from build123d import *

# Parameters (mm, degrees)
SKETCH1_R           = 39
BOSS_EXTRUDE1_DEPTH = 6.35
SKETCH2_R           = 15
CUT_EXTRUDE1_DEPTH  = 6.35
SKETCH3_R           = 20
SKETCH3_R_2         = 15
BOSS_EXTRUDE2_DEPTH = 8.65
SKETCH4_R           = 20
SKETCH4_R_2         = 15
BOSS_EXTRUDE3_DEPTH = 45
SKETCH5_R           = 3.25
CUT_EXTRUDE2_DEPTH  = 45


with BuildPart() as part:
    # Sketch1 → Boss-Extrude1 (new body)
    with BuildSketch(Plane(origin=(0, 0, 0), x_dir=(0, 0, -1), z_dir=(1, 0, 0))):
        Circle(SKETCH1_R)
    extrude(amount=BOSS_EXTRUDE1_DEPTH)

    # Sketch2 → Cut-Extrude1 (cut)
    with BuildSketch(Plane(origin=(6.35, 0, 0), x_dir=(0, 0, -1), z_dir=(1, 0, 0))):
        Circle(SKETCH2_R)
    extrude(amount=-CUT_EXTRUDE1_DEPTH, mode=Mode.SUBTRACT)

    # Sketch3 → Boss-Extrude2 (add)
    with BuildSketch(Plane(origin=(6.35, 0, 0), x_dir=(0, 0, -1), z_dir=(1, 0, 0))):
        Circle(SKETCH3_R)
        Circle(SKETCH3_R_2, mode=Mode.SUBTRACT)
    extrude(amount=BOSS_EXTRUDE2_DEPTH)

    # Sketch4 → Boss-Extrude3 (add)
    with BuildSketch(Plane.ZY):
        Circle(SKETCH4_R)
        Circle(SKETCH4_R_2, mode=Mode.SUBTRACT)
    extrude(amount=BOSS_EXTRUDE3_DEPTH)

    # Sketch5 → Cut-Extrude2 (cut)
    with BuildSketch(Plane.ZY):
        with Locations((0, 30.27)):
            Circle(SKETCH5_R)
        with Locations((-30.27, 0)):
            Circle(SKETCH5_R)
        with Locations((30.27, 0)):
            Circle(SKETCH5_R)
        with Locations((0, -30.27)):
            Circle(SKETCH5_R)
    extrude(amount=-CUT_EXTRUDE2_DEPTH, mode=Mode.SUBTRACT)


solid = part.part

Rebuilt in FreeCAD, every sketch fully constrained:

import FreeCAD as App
import Part
import Sketcher

V = App.Vector

doc = App.newDocument("Part")
body = doc.addObject("PartDesign::Body", "Body")

# Sketch on YZ plane
sketch1 = body.newObject("Sketcher::SketchObject", "Sketch")
sketch1.AttachmentSupport = (doc.getObject("YZ_Plane"), [""])
sketch1.MapMode = "FlatFace"
sketch1.addGeometry(Part.Circle(V(0, 0, 0), V(0, 0, 1), 39), False)
sketch1.addConstraint([
    Sketcher.Constraint("Coincident", 0, 3, -1, 1),
    Sketcher.Constraint("Diameter", 0, 78.0),
])
pad1 = body.newObject("PartDesign::Pad", "Pad")
pad1.Profile = sketch1
pad1.Length = 6.35

# Sketch on YZ plane
sketch2 = body.newObject("Sketcher::SketchObject", "Sketch001")
sketch2.AttachmentSupport = (doc.getObject("YZ_Plane"), [""])
sketch2.MapMode = "FlatFace"
sketch2.AttachmentOffset = App.Placement(V(0, 0, 6.35), App.Rotation())
sketch2.addGeometry(Part.Circle(V(0, 0, 0), V(0, 0, 1), 15), False)
sketch2.addConstraint([
    Sketcher.Constraint("Coincident", 0, 3, -1, 1),
    Sketcher.Constraint("Diameter", 0, 30.0),
])
pocket1 = body.newObject("PartDesign::Pocket", "Pocket")
pocket1.Profile = sketch2
pocket1.Length = 6.35

# Sketch on YZ plane
sketch3 = body.newObject("Sketcher::SketchObject", "Sketch002")
sketch3.AttachmentSupport = (doc.getObject("YZ_Plane"), [""])
sketch3.MapMode = "FlatFace"
sketch3.AttachmentOffset = App.Placement(V(0, 0, 6.35), App.Rotation())
sketch3.addGeometry([
    Part.Circle(V(0, 0, 0), V(0, 0, 1), 20),
    Part.Circle(V(0, 0, 0), V(0, 0, 1), 15),
], False)
sketch3.addConstraint([
    Sketcher.Constraint("Coincident", 0, 3, -1, 1),
    Sketcher.Constraint("Coincident", 1, 3, -1, 1),
    Sketcher.Constraint("Diameter", 0, 40.0),
    Sketcher.Constraint("Diameter", 1, 30.0),
])
pad2 = body.newObject("PartDesign::Pad", "Pad001")
pad2.Profile = sketch3
pad2.Length = 8.65

# Sketch on YZ plane
sketch4 = body.newObject("Sketcher::SketchObject", "Sketch003")
sketch4.AttachmentSupport = (doc.getObject("YZ_Plane"), [""])
sketch4.MapMode = "FlatFace"
sketch4.addGeometry([
    Part.Circle(V(0, 0, 0), V(0, 0, 1), 20),
    Part.Circle(V(0, 0, 0), V(0, 0, 1), 15),
], False)
sketch4.addConstraint([
    Sketcher.Constraint("Coincident", 0, 3, -1, 1),
    Sketcher.Constraint("Coincident", 1, 3, -1, 1),
    Sketcher.Constraint("Diameter", 0, 40.0),
    Sketcher.Constraint("Diameter", 1, 30.0),
])
pad3 = body.newObject("PartDesign::Pad", "Pad002")
pad3.Profile = sketch4
pad3.Length = 45
pad3.Reversed = True

# Sketch on YZ plane
sketch5 = body.newObject("Sketcher::SketchObject", "Sketch004")
sketch5.AttachmentSupport = (doc.getObject("YZ_Plane"), [""])
sketch5.MapMode = "FlatFace"
sketch5.addGeometry([
    Part.Circle(V(30.3, 0, 0), V(0, 0, 1), 3.2),
    Part.Circle(V(0, -30.3, 0), V(0, 0, 1), 3.2),
    Part.Circle(V(0, 30.3, 0), V(0, 0, 1), 3.2),
    Part.Circle(V(-30.3, 0, 0), V(0, 0, 1), 3.2),
], False)
sketch5.addConstraint([
    Sketcher.Constraint("Equal", 0, 1),
    Sketcher.Constraint("Equal", 1, 2),
    Sketcher.Constraint("Equal", 2, 3),
    Sketcher.Constraint("Symmetric", 1, 3, 2, 3, -1, 1),
    Sketcher.Constraint("Symmetric", 0, 3, 3, 3, -1, 1),
    Sketcher.Constraint("PointOnObject", 0, 3, -1),
    Sketcher.Constraint("PointOnObject", 1, 3, -2),
    Sketcher.Constraint("Diameter", 0, 6.5),
    Sketcher.Constraint("DistanceX", -1, 1, 0, 3, 30.27),
    Sketcher.Constraint("DistanceY", 1, 3, -1, 1, 30.27),
])
pocket2 = body.newObject("PartDesign::Pocket", "Pocket001")
pocket2.Profile = sketch5
pocket2.Length = 45
pocket2.Reversed = True

doc.recompute()
